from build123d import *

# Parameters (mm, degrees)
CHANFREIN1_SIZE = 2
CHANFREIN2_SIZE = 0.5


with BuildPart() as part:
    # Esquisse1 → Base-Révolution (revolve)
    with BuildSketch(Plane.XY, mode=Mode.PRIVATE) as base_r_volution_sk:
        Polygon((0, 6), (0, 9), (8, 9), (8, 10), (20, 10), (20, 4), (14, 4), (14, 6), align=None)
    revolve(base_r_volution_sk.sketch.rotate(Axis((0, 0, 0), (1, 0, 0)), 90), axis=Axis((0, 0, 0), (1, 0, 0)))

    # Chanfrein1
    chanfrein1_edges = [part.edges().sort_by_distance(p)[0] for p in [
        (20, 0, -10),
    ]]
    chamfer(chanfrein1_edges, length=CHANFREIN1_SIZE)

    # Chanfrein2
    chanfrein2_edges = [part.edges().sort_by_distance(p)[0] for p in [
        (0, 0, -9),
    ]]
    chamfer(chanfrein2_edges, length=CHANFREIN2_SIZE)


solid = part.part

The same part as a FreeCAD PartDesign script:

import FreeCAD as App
import Part
import Sketcher

V = App.Vector
Q = App.Units.Quantity


def edges_at(feature, points):
    """Names of the edges that pass closest to the given points."""
    edges = feature.Shape.Edges
    near = lambda p: min(range(len(edges)), key=lambda i: edges[i].distToShape(Part.Vertex(*p))[0])
    return sorted({f"Edge{near(p) + 1}" for p in points})


def add_polygon(sketch, points):
    """Adds a closed chain of lines whose ends are joined by coincident constraints."""
    first, n = sketch.GeometryCount, len(points)
    for a, b in zip(points, points[1:] + points[:1]):
        sketch.addGeometry(Part.LineSegment(App.Vector(*a, 0), App.Vector(*b, 0)), False)
    for i in range(n):
        sketch.addConstraint(Sketcher.Constraint("Coincident", first + i, 2, first + (i + 1) % n, 1))

doc = App.newDocument("Part")
body = doc.addObject("PartDesign::Body", "Body")

sketch1 = body.newObject("Sketcher::SketchObject", "Sketch")
sketch1.AttachmentSupport = (doc.getObject("XY_Plane"), [""])
sketch1.MapMode = "FlatFace"
add_polygon(sketch1, [(0, 9), (0, 6), (14, 6), (14, 4), (20, 4), (20, 10), (8, 10), (8, 9)])
sketch1.addConstraint([
    Sketcher.Constraint("Vertical", 0),
    Sketcher.Constraint("Horizontal", 1),
    Sketcher.Constraint("Vertical", 2),
    Sketcher.Constraint("Horizontal", 3),
    Sketcher.Constraint("Vertical", 4),
    Sketcher.Constraint("Horizontal", 5),
    Sketcher.Constraint("Vertical", 6),
    Sketcher.Constraint("Horizontal", 7),
    Sketcher.Constraint("PointOnObject", 0, 2, -2),
    Sketcher.Constraint("Equal", 3, 4),
    Sketcher.Constraint("DistanceX", 1, 1, 1, 2, Q("14 mm")),
    Sketcher.Constraint("DistanceX", 3, 1, 3, 2, Q("6 mm")),
    Sketcher.Constraint("DistanceX", 5, 2, 5, 1, Q("12 mm")),
    Sketcher.Constraint("DistanceY", 0, 2, 0, 1, Q("3 mm")),
    Sketcher.Constraint("DistanceY", 2, 2, 2, 1, Q("2 mm")),
    Sketcher.Constraint("DistanceY", -1, 1, 0, 2, Q("6 mm")),
])
revolution = body.newObject("PartDesign::Revolution", "Revolution")
revolution.Profile = sketch1
revolution.ReferenceAxis = (sketch1, ["H_Axis"])
revolution.Angle = 360
doc.recompute()

chamfer = body.newObject("PartDesign::Chamfer", "Chamfer")
chamfer.Base = (revolution, edges_at(revolution, [(20, 0, -10)]))
chamfer.Size = 2
doc.recompute()

chamfer2 = body.newObject("PartDesign::Chamfer", "Chamfer001")
chamfer2.Base = (chamfer, edges_at(chamfer, [(0, 0, -9)]))
chamfer2.Size = 0.5

doc.recompute()
